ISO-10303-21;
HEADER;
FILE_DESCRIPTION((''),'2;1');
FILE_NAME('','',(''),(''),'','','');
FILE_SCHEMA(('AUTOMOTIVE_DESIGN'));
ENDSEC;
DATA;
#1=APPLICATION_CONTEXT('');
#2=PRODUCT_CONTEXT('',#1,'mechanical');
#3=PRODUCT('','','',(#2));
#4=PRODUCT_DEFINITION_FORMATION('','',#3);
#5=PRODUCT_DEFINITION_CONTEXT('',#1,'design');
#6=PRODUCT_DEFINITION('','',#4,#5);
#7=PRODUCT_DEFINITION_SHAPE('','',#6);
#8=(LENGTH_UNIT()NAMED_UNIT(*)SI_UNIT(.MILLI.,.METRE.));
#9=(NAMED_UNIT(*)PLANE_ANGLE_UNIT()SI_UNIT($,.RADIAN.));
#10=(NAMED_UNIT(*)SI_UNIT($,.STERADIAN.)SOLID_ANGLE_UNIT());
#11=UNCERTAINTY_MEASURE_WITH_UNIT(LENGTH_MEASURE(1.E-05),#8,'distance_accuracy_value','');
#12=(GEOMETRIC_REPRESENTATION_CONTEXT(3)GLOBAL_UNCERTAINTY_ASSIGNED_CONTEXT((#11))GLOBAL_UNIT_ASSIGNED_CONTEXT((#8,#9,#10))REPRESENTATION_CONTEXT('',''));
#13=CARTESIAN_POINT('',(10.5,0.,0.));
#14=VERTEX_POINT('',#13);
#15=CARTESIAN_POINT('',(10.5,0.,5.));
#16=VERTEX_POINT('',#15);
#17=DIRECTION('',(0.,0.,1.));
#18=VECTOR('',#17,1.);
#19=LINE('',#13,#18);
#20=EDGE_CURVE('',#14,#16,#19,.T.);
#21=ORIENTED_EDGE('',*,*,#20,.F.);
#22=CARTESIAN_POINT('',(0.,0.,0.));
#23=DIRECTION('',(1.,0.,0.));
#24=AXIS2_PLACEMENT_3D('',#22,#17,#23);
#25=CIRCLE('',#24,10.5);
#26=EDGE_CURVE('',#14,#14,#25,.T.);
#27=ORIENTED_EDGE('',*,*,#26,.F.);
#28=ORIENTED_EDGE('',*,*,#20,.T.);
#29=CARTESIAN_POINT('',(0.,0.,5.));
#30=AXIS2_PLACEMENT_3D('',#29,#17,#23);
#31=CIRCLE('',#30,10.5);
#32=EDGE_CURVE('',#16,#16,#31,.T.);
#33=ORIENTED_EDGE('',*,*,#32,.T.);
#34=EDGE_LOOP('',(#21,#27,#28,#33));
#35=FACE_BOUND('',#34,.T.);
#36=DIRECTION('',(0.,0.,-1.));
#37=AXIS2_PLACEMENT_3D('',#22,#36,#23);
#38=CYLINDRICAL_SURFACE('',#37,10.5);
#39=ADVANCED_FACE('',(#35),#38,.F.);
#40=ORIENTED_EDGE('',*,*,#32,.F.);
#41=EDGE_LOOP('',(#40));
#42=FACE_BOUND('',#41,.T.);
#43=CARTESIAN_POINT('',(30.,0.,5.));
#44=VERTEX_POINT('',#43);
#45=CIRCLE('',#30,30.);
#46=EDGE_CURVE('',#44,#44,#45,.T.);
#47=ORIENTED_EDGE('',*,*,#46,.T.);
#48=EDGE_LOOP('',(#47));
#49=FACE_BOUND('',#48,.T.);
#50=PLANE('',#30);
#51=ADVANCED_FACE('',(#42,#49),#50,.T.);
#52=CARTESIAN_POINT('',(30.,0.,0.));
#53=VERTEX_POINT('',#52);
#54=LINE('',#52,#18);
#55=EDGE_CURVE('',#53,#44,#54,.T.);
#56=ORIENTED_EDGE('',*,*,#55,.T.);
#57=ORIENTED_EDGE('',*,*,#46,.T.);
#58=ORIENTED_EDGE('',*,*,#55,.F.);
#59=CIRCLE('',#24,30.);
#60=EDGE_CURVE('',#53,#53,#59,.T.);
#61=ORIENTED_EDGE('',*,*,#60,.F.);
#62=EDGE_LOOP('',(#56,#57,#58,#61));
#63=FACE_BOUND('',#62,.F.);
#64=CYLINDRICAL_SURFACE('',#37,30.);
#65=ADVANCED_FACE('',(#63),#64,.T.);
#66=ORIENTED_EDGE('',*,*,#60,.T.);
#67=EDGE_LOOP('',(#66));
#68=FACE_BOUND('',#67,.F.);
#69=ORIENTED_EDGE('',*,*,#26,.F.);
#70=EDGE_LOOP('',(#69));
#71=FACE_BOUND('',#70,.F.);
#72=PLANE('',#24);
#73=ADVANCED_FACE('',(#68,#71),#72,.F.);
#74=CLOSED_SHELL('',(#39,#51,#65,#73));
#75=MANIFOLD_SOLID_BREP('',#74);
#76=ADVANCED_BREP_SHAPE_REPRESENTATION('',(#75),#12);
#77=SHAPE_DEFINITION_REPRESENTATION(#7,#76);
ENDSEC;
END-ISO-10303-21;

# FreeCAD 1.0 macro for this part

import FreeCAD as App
import Part
import Sketcher

V = App.Vector

doc = App.newDocument("Part")
body = doc.addObject("PartDesign::Body", "Body")

# Sketch on XY plane
sketch1 = body.newObject("Sketcher::SketchObject", "Sketch")
sketch1.AttachmentSupport = (doc.getObject("XY_Plane"), [""])
sketch1.MapMode = "FlatFace"
sketch1.addGeometry([
    Part.Circle(V(0, 0, 0), V(0, 0, 1), 30),
    Part.Circle(V(0, 0, 0), V(0, 0, 1), 10),
], False)
sketch1.addConstraint([
    Sketcher.Constraint("Coincident", 0, 3, -1, 1),
    Sketcher.Constraint("Coincident", 1, 3, -1, 1),
    Sketcher.Constraint("Diameter", 0, 60.0),
    Sketcher.Constraint("Diameter", 1, 21.0),
])
pad1 = body.newObject("PartDesign::Pad", "Pad")
pad1.Profile = sketch1
pad1.Length = 5

doc.recompute()
